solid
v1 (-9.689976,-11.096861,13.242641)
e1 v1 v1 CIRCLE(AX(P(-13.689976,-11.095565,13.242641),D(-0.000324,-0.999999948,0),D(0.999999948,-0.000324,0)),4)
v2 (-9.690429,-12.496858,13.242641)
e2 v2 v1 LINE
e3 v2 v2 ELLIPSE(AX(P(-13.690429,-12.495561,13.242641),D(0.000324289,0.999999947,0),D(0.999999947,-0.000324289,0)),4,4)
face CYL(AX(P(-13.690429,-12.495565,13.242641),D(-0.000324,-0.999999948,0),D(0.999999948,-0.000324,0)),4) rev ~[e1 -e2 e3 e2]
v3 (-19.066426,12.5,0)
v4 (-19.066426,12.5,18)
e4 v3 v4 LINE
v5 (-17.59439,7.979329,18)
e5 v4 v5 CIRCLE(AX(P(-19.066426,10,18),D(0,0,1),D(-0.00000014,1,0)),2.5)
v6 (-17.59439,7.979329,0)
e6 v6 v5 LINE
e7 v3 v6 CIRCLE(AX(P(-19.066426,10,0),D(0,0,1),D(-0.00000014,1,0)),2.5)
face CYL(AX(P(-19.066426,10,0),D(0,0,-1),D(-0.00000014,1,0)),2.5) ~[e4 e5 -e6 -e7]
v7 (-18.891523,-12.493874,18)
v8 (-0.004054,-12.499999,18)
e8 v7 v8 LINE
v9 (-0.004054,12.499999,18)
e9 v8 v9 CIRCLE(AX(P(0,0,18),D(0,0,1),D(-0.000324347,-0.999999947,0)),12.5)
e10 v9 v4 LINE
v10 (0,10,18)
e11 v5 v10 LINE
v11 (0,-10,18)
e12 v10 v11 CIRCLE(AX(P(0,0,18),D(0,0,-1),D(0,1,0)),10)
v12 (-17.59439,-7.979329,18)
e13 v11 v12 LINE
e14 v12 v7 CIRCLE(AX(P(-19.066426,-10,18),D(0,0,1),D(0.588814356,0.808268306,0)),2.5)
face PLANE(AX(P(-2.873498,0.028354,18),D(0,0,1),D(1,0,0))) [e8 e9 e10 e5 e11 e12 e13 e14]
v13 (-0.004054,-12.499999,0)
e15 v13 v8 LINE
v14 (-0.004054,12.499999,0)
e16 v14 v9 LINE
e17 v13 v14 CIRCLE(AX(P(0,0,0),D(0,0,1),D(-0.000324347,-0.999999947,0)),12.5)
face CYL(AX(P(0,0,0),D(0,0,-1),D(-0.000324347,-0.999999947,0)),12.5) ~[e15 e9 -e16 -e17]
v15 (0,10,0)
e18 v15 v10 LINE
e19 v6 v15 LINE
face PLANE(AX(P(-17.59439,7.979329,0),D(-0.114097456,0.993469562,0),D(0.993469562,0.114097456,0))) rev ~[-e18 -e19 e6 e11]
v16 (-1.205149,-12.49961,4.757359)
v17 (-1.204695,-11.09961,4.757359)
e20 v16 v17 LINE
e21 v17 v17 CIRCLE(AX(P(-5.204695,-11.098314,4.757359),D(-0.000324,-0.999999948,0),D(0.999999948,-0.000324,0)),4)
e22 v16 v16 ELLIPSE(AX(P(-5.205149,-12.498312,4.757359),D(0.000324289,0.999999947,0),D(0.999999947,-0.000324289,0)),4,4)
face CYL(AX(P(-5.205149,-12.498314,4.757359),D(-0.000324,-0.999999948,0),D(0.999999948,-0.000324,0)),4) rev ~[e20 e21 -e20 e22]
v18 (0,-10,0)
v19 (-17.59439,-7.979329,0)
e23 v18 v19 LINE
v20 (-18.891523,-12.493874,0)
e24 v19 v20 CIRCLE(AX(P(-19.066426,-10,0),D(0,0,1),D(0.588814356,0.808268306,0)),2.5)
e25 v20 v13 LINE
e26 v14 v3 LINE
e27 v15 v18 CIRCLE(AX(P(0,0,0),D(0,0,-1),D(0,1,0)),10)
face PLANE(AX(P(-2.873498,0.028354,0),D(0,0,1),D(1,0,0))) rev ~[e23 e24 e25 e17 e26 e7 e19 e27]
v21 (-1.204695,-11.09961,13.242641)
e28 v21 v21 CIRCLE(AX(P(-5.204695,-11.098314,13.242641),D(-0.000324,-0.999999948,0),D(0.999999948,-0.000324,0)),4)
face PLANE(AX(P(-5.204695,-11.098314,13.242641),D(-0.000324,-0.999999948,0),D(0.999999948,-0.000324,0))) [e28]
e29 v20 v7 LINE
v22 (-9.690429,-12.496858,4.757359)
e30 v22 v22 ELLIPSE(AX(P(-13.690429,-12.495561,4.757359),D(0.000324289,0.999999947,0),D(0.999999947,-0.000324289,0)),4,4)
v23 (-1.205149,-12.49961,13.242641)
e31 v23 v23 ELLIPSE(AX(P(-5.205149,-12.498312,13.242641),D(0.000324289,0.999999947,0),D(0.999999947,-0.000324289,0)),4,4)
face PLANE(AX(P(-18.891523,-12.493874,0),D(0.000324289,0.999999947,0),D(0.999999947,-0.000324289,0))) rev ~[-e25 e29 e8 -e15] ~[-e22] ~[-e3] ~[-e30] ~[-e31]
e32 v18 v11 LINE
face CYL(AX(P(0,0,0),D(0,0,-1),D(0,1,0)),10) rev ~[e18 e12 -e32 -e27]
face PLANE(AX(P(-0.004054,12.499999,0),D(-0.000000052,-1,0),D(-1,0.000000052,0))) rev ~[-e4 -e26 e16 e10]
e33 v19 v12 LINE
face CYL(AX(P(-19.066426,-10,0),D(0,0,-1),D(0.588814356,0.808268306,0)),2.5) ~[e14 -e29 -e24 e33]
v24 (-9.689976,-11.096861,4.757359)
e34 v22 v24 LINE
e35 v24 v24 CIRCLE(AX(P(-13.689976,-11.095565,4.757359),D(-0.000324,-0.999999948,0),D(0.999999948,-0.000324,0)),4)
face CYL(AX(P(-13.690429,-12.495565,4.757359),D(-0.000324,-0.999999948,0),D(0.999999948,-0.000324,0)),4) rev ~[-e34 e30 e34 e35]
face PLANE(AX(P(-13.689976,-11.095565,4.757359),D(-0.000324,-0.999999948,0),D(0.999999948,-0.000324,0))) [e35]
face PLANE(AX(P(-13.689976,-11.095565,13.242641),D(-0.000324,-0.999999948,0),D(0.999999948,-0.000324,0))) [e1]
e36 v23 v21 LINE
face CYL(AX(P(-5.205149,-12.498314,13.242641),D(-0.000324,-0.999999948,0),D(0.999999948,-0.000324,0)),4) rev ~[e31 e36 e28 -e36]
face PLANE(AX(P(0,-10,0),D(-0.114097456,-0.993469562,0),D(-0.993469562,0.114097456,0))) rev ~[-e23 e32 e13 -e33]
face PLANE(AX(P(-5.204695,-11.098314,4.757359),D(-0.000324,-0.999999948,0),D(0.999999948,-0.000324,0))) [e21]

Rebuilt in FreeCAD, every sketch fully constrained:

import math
import FreeCAD as App
import Part
import Sketcher

doc = App.newDocument("Part")
params = doc.addObject("Spreadsheet::Sheet", "Params")
for row, (alias, value) in enumerate([
    ("sketch1_radius", "10 mm"),
    ("sketch1_radius2", "2.5 mm"),
    ("pad1_length", "18 mm"),
    ("sketch2_diameter", "8 mm"),
    ("pocket1_length", "1.4 mm"),
], start=1):
    params.set(f"A{row}", alias)
    params.set(f"B{row}", "=" + value)
    params.setAlias(f"B{row}", alias)

body = doc.addObject("PartDesign::Body", "Body")

# Sketch on XY plane
sketch1 = doc.addObject("Sketcher::SketchObject", "Sketch")
body.addObject(sketch1)
sketch1.AttachmentSupport = (doc.XY_Plane, [""])
sketch1.MapMode = "FlatFace"
sketch1.addGeometry(Part.ArcOfCircle(Part.Circle(App.Vector(0, 0, 0), App.Vector(0, 0, 1), 10), math.radians(-90), math.radians(90)), False)
sketch1.addGeometry(Part.LineSegment(App.Vector(0, -10, 0), App.Vector(-17.59439, -7.979329, 0)), False)
sketch1.addGeometry(Part.ArcOfCircle(Part.Circle(App.Vector(-19.066426, -10, 0), App.Vector(0, 0, 1), 2.5), math.radians(53.927084), math.radians(274.011756)), False)
sketch1.addGeometry(Part.LineSegment(App.Vector(-18.891523, -12.493874, 0), App.Vector(-0.004054, -12.499999, 0)), False)
sketch1.addGeometry(Part.ArcOfCircle(Part.Circle(App.Vector(0, 0, 0), App.Vector(0, 0, 1), 12.5), math.radians(-90.018584), math.radians(90.018584)), False)
sketch1.addGeometry(Part.LineSegment(App.Vector(-0.004054, 12.499999, 0), App.Vector(-19.066426, 12.5, 0)), False)
sketch1.addGeometry(Part.ArcOfCircle(Part.Circle(App.Vector(-19.066426, 10, 0), App.Vector(0, 0, 1), 2.5), math.radians(90.000008), math.radians(306.072909)), False)
sketch1.addGeometry(Part.LineSegment(App.Vector(-17.59439, 7.979329, 0), App.Vector(0, 10, 0)), False)
sketch1.addConstraint(Sketcher.Constraint("Coincident", 0, 1, 1, 1))
sketch1.addConstraint(Sketcher.Constraint("Coincident", 1, 2, 2, 1))
sketch1.addConstraint(Sketcher.Constraint("Coincident", 2, 2, 3, 1))
sketch1.addConstraint(Sketcher.Constraint("Tangent", 3, 2, 4, 1))
sketch1.addConstraint(Sketcher.Constraint("Coincident", 4, 2, 5, 1))
sketch1.addConstraint(Sketcher.Constraint("Tangent", 5, 2, 6, 1))
sketch1.addConstraint(Sketcher.Constraint("Coincident", 6, 2, 7, 1))
sketch1.addConstraint(Sketcher.Constraint("Coincident", 7, 2, 0, 2))
sketch1.addConstraint(Sketcher.Constraint("Horizontal", 5))
sketch1.addConstraint(Sketcher.Constraint("Coincident", 0, 3, -1, 1))
sketch1.addConstraint(Sketcher.Constraint("Coincident", 4, 3, -1, 1))
sketch1.addConstraint(Sketcher.Constraint("Equal", 2, 6))
sketch1.addConstraint(Sketcher.Constraint("Symmetric", 2, 3, 6, 3, -1))
sketch1.addConstraint(Sketcher.Constraint("PointOnObject", 0, 1, -2))
sketch1.addConstraint(Sketcher.Constraint("PointOnObject", 7, 2, -2))
sketch1.addConstraint(Sketcher.Constraint("Horizontal", 2, 3, 0, 1))
sketch1.addConstraint(Sketcher.Constraint("Vertical", 3, 2, 4, 2))
sketch1.addConstraint(Sketcher.Constraint("Vertical", 1, 2, 6, 2))
sketch1.addConstraint(Sketcher.Constraint("Radius", 0, 10.0))
sketch1.addConstraint(Sketcher.Constraint("Radius", 2, 2.5))
sketch1.addConstraint(Sketcher.Constraint("DistanceX", 5, 2, 5, 1, 19.062372))
sketch1.addConstraint(Sketcher.Constraint("Distance", 3, 18.88747))
sketch1.addConstraint(Sketcher.Constraint("DistanceX", 1, 2, -1, 1, 17.59439))
sketch1.setExpression("Constraints[18]", "Params.sketch1_radius")
sketch1.setExpression("Constraints[19]", "Params.sketch1_radius2")
pad1 = doc.addObject("PartDesign::Pad", "Pad")
body.addObject(pad1)
pad1.Profile = sketch1
pad1.setExpression("Length", "Params.pad1_length")

# Sketch on an angled plane
sketch2 = doc.addObject("Sketcher::SketchObject", "Sketch001")
body.addObject(sketch2)
sketch2.Placement = App.Placement(App.Vector(-0.004054, -12.499999, 0), App.Rotation(App.Vector(0.999999948, -0.000324, 0), App.Vector(0, 0, 1.000000001), App.Vector(-0.000324, -0.999999948, 0), "ZXY"))
sketch2.addGeometry(Part.Circle(App.Vector(-13.686376, 4.757359, 0), App.Vector(0, 0, 1), 4), False)
sketch2.addGeometry(Part.Circle(App.Vector(-13.686376, 13.242641, 0), App.Vector(0, 0, 1), 4), False)
sketch2.addGeometry(Part.Circle(App.Vector(-5.201095, 13.242641, 0), App.Vector(0, 0, 1), 4), False)
sketch2.addGeometry(Part.Circle(App.Vector(-5.201095, 4.757359, 0), App.Vector(0, 0, 1), 4), False)
sketch2.addConstraint(Sketcher.Constraint("Equal", 0, 1))
sketch2.addConstraint(Sketcher.Constraint("Equal", 1, 2))
sketch2.addConstraint(Sketcher.Constraint("Equal", 2, 3))
sketch2.addConstraint(Sketcher.Constraint("Horizontal", 1, 3, 2, 3))
sketch2.addConstraint(Sketcher.Constraint("Horizontal", 0, 3, 3, 3))
sketch2.addConstraint(Sketcher.Constraint("Vertical", 0, 3, 1, 3))
sketch2.addConstraint(Sketcher.Constraint("Vertical", 2, 3, 3, 3))
sketch2.addConstraint(Sketcher.Constraint("Diameter", 0, 8.0))
sketch2.addConstraint(Sketcher.Constraint("DistanceY", -1, 1, 0, 3, 4.757359))
sketch2.addConstraint(Sketcher.Constraint("DistanceY", -1, 1, 1, 3, 13.242641))
sketch2.addConstraint(Sketcher.Constraint("DistanceX", 1, 3, 2, 3, 8.485281))
sketch2.addConstraint(Sketcher.Constraint("DistanceX", 0, 3, -1, 1, 13.686376))
sketch2.setExpression("Constraints[7]", "Params.sketch2_diameter")
pocket1 = doc.addObject("PartDesign::Pocket", "Pocket")
body.addObject(pocket1)
pocket1.Profile = sketch2
pocket1.setExpression("Length", "Params.pocket1_length")

doc.recompute()
